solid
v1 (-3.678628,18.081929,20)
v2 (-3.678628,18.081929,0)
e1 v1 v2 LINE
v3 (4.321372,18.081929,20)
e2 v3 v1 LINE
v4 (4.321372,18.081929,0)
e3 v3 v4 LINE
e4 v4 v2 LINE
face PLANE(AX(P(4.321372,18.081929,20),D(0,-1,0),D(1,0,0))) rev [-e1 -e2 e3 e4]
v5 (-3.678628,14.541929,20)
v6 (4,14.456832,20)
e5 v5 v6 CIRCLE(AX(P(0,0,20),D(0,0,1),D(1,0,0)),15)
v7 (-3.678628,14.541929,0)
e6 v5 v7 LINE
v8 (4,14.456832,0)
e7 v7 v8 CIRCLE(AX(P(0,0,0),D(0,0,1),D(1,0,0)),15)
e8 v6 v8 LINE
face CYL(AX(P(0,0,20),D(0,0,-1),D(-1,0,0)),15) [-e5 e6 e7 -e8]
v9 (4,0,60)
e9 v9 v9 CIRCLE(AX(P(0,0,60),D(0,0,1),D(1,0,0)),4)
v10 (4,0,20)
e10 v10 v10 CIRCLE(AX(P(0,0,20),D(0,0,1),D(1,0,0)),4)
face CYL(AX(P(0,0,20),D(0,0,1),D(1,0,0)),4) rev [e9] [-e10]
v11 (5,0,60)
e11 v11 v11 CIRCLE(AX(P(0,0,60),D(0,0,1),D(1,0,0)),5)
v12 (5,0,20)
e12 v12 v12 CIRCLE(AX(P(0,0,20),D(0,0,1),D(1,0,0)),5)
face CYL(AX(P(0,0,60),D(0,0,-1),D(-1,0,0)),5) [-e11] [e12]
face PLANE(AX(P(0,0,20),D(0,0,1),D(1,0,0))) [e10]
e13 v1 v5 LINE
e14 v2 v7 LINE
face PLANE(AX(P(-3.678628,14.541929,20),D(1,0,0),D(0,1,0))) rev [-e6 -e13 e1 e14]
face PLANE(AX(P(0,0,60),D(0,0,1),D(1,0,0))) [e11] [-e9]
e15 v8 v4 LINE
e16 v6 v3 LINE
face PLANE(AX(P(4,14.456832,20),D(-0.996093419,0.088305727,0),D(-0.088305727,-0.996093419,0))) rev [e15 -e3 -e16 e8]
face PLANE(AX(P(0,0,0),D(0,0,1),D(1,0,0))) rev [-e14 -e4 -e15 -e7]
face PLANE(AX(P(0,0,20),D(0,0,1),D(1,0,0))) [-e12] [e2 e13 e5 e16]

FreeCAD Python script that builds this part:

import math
import FreeCAD as App
import Part
import Sketcher

V = App.Vector
Q = App.Units.Quantity

doc = App.newDocument("Part")
body = doc.addObject("PartDesign::Body", "Body")

sketch1 = body.newObject("Sketcher::SketchObject", "Sketch")
sketch1.AttachmentSupport = (doc.getObject("XY_Plane"), [""])
sketch1.MapMode = "FlatFace"
sketch1.addGeometry([
    Part.LineSegment(V(-3.7, 18.1, 0), V(-3.7, 14.5, 0)),
    Part.ArcOfCircle(Part.Circle(V(0, 0, 0), V(0, 0, 1), 15), math.radians(104), math.radians(435)),
    Part.LineSegment(V(4, 14.5, 0), V(4.3, 18.1, 0)),
    Part.LineSegment(V(4.3, 18.1, 0), V(-3.7, 18.1, 0)),
], False)
sketch1.addConstraint([
    Sketcher.Constraint("Coincident", 0, 2, 1, 1),
    Sketcher.Constraint("Coincident", 1, 2, 2, 1),
    Sketcher.Constraint("Coincident", 2, 2, 3, 1),
    Sketcher.Constraint("Coincident", 3, 2, 0, 1),
    Sketcher.Constraint("Vertical", 0),
    Sketcher.Constraint("Horizontal", 3),
    Sketcher.Constraint("Coincident", 1, 3, -1, 1),
    Sketcher.Constraint("Radius", 1, Q("15 mm")),
    Sketcher.Constraint("DistanceX", 3, 2, 3, 1, Q("8 mm")),
    Sketcher.Constraint("DistanceX", -1, 1, 1, 2, Q("4 mm")),
    Sketcher.Constraint("DistanceY", 0, 2, 0, 1, Q("3.54 mm")),
    Sketcher.Constraint("DistanceY", -1, 1, 0, 2, Q("14.541929 mm")),
])
pad1 = body.newObject("PartDesign::Pad", "Pad")
pad1.Profile = sketch1
pad1.Length = 20

sketch2 = body.newObject("Sketcher::SketchObject", "Sketch001")
sketch2.AttachmentSupport = (doc.getObject("XY_Plane"), [""])
sketch2.MapMode = "FlatFace"
sketch2.AttachmentOffset = App.Placement(V(0, 0, 20), App.Rotation())
sketch2.addGeometry(Part.Circle(V(0, 0, 0), V(0, 0, 1), 5), False)
sketch2.addConstraint([
    Sketcher.Constraint("Coincident", 0, 3, -1, 1),
    Sketcher.Constraint("Diameter", 0, Q("10 mm")),
])
pad2 = body.newObject("PartDesign::Pad", "Pad001")
pad2.Profile = sketch2
pad2.Length = 40

sketch3 = body.newObject("Sketcher::SketchObject", "Sketch002")
sketch3.AttachmentSupport = (doc.getObject("XY_Plane"), [""])
sketch3.MapMode = "FlatFace"
sketch3.AttachmentOffset = App.Placement(V(0, 0, 60), App.Rotation())
sketch3.addGeometry(Part.Circle(V(0, 0, 0), V(0, 0, 1), 4), False)
sketch3.addConstraint([
    Sketcher.Constraint("Coincident", 0, 3, -1, 1),
    Sketcher.Constraint("Diameter", 0, Q("8 mm")),
])
pocket1 = body.newObject("PartDesign::Pocket", "Pocket")
pocket1.Profile = sketch3
pocket1.Length = 40

doc.recompute()
